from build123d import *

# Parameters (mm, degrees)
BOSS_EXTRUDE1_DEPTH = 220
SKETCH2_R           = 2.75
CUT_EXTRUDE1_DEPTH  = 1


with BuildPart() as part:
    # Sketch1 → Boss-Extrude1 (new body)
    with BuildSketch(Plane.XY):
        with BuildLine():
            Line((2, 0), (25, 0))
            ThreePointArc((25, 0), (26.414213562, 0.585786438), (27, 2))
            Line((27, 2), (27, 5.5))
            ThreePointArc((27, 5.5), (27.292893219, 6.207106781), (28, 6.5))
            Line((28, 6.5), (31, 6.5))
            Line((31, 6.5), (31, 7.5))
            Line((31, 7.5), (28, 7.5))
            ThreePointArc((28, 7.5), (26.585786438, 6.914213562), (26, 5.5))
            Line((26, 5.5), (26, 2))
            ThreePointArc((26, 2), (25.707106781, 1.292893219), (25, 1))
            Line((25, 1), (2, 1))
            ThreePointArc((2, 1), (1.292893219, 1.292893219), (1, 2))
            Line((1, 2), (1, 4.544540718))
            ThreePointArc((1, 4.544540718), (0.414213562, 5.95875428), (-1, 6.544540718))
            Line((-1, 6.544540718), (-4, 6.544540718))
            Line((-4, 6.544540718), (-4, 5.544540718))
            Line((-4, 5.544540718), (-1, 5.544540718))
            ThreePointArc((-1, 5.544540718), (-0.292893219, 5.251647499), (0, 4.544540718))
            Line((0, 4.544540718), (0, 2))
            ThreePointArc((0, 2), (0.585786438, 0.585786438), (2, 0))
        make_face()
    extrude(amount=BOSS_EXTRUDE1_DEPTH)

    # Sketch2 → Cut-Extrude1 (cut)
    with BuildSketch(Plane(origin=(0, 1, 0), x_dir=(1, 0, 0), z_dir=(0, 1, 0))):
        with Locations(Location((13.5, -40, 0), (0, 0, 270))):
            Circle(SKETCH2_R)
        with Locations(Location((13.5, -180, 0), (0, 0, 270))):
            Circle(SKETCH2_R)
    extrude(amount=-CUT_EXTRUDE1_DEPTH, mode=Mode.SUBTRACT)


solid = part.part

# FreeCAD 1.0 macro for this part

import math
import FreeCAD as App
import Part
import Sketcher

V = App.Vector

doc = App.newDocument("Part")
body = doc.addObject("PartDesign::Body", "Body")

sketch1 = body.newObject("Sketcher::SketchObject", "Sketch")
sketch1.AttachmentSupport = (doc.getObject("XY_Plane"), [""])
sketch1.MapMode = "FlatFace"
sketch1.addGeometry(Part.LineSegment(V(2, 0, 0), V(25, 0, 0)), False)
sketch1.addGeometry(Part.ArcOfCircle(Part.Circle(V(25, 2, 0), V(0, 0, 1), 2), math.radians(-90), math.radians(0)), False)
sketch1.addGeometry(Part.LineSegment(V(27, 2, 0), V(27, 5.5, 0)), False)
sketch1.addGeometry(Part.ArcOfCircle(Part.Circle(V(28, 5.5, 0), V(0, 0, 1), 1), math.radians(90), math.radians(180)), False)
sketch1.addGeometry(Part.LineSegment(V(28, 6.5, 0), V(31, 6.5, 0)), False)
sketch1.addGeometry(Part.LineSegment(V(31, 6.5, 0), V(31, 7.5, 0)), False)
sketch1.addGeometry(Part.LineSegment(V(31, 7.5, 0), V(28, 7.5, 0)), False)
sketch1.addGeometry(Part.ArcOfCircle(Part.Circle(V(28, 5.5, 0), V(0, 0, 1), 2), math.radians(90), math.radians(180)), False)
sketch1.addGeometry(Part.LineSegment(V(26, 5.5, 0), V(26, 2, 0)), False)
sketch1.addGeometry(Part.ArcOfCircle(Part.Circle(V(25, 2, 0), V(0, 0, 1), 1), math.radians(-90), math.radians(0)), False)
sketch1.addGeometry(Part.LineSegment(V(25, 1, 0), V(2, 1, 0)), False)
sketch1.addGeometry(Part.ArcOfCircle(Part.Circle(V(2, 2, 0), V(0, 0, 1), 1), math.radians(-180), math.radians(-90)), False)
sketch1.addGeometry(Part.LineSegment(V(1, 2, 0), V(1, 4.544541, 0)), False)
sketch1.addGeometry(Part.ArcOfCircle(Part.Circle(V(-1, 4.544541, 0), V(0, 0, 1), 2), math.radians(0), math.radians(90)), False)
sketch1.addGeometry(Part.LineSegment(V(-1, 6.544541, 0), V(-4, 6.544541, 0)), False)
sketch1.addGeometry(Part.LineSegment(V(-4, 6.544541, 0), V(-4, 5.544541, 0)), False)
sketch1.addGeometry(Part.LineSegment(V(-4, 5.544541, 0), V(-1, 5.544541, 0)), False)
sketch1.addGeometry(Part.ArcOfCircle(Part.Circle(V(-1, 4.544541, 0), V(0, 0, 1), 1), math.radians(0), math.radians(90)), False)
sketch1.addGeometry(Part.LineSegment(V(0, 4.544541, 0), V(0, 2, 0)), False)
sketch1.addGeometry(Part.ArcOfCircle(Part.Circle(V(2, 2, 0), V(0, 0, 1), 2), math.radians(-180), math.radians(-90)), False)
sketch1.addConstraint(Sketcher.Constraint("Tangent", 0, 2, 1, 1))
sketch1.addConstraint(Sketcher.Constraint("Tangent", 1, 2, 2, 1))
sketch1.addConstraint(Sketcher.Constraint("Tangent", 2, 2, 3, 2))
sketch1.addConstraint(Sketcher.Constraint("Tangent", 3, 1, 4, 1))
sketch1.addConstraint(Sketcher.Constraint("Coincident", 4, 2, 5, 1))
sketch1.addConstraint(Sketcher.Constraint("Coincident", 5, 2, 6, 1))
sketch1.addConstraint(Sketcher.Constraint("Tangent", 6, 2, 7, 1))
sketch1.addConstraint(Sketcher.Constraint("Tangent", 7, 2, 8, 1))
sketch1.addConstraint(Sketcher.Constraint("Tangent", 8, 2, 9, 2))
sketch1.addConstraint(Sketcher.Constraint("Tangent", 9, 1, 10, 1))
sketch1.addConstraint(Sketcher.Constraint("Tangent", 10, 2, 11, 2))
sketch1.addConstraint(Sketcher.Constraint("Tangent", 11, 1, 12, 1))
sketch1.addConstraint(Sketcher.Constraint("Tangent", 12, 2, 13, 1))
sketch1.addConstraint(Sketcher.Constraint("Tangent", 13, 2, 14, 1))
sketch1.addConstraint(Sketcher.Constraint("Coincident", 14, 2, 15, 1))
sketch1.addConstraint(Sketcher.Constraint("Coincident", 15, 2, 16, 1))
sketch1.addConstraint(Sketcher.Constraint("Tangent", 16, 2, 17, 2))
sketch1.addConstraint(Sketcher.Constraint("Tangent", 17, 1, 18, 1))
sketch1.addConstraint(Sketcher.Constraint("Tangent", 18, 2, 19, 1))
sketch1.addConstraint(Sketcher.Constraint("Tangent", 19, 2, 0, 1))
sketch1.addConstraint(Sketcher.Constraint("Horizontal", 0))
sketch1.addConstraint(Sketcher.Constraint("Vertical", 2))
sketch1.addConstraint(Sketcher.Constraint("Horizontal", 4))
sketch1.addConstraint(Sketcher.Constraint("Vertical", 5))
sketch1.addConstraint(Sketcher.Constraint("Horizontal", 6))
sketch1.addConstraint(Sketcher.Constraint("Vertical", 8))
sketch1.addConstraint(Sketcher.Constraint("Horizontal", 10))
sketch1.addConstraint(Sketcher.Constraint("Vertical", 12))
sketch1.addConstraint(Sketcher.Constraint("Horizontal", 14))
sketch1.addConstraint(Sketcher.Constraint("Vertical", 15))
sketch1.addConstraint(Sketcher.Constraint("Horizontal", 16))
sketch1.addConstraint(Sketcher.Constraint("Vertical", 18))
sketch1.addConstraint(Sketcher.Constraint("Coincident", 7, 3, 3, 3))
sketch1.addConstraint(Sketcher.Constraint("Coincident", 9, 3, 1, 3))
sketch1.addConstraint(Sketcher.Constraint("Coincident", 17, 3, 13, 3))
sketch1.addConstraint(Sketcher.Constraint("Coincident", 19, 3, 11, 3))
sketch1.addConstraint(Sketcher.Constraint("Equal", 1, 7))
sketch1.addConstraint(Sketcher.Constraint("Equal", 9, 11))
sketch1.addConstraint(Sketcher.Constraint("Equal", 7, 13))
sketch1.addConstraint(Sketcher.Constraint("PointOnObject", 0, 2, -1))
sketch1.addConstraint(Sketcher.Constraint("PointOnObject", 17, 1, -2))
sketch1.addConstraint(Sketcher.Constraint("Equal", 6, 14))
sketch1.addConstraint(Sketcher.Constraint("Radius", 1, 2.0))
sketch1.addConstraint(Sketcher.Constraint("Radius", 3, 1.0))
sketch1.addConstraint(Sketcher.Constraint("DistanceX", 0, 1, 0, 2, 23.0))
sketch1.addConstraint(Sketcher.Constraint("DistanceX", 4, 1, 4, 2, 3.0))
sketch1.addConstraint(Sketcher.Constraint("DistanceY", 2, 1, 2, 2, 3.5))
sketch1.addConstraint(Sketcher.Constraint("DistanceY", 12, 1, 12, 2, 2.544541))
pad1 = body.newObject("PartDesign::Pad", "Pad")
pad1.Profile = sketch1
pad1.Length = 220

sketch2 = body.newObject("Sketcher::SketchObject", "Sketch001")
sketch2.AttachmentSupport = (doc.getObject("XZ_Plane"), [""])
sketch2.MapMode = "FlatFace"
sketch2.AttachmentOffset = App.Placement(V(0, 0, -1), App.Rotation())
sketch2.addGeometry(Part.Circle(V(13.5, 40, 0), V(0, 0, 1), 2.75), False)
sketch2.addGeometry(Part.Circle(V(13.5, 180, 0), V(0, 0, 1), 2.75), False)
sketch2.addConstraint(Sketcher.Constraint("Equal", 0, 1))
sketch2.addConstraint(Sketcher.Constraint("Vertical", 0, 3, 1, 3))
sketch2.addConstraint(Sketcher.Constraint("Diameter", 0, 5.5))
sketch2.addConstraint(Sketcher.Constraint("DistanceY", -1, 1, 0, 3, 40.0))
sketch2.addConstraint(Sketcher.Constraint("DistanceY", -1, 1, 1, 3, 180.0))
sketch2.addConstraint(Sketcher.Constraint("DistanceX", -1, 1, 0, 3, 13.5))
pocket1 = body.newObject("PartDesign::Pocket", "Pocket")
pocket1.Profile = sketch2
pocket1.Length = 1
pocket1.Reversed = True

doc.recompute()
